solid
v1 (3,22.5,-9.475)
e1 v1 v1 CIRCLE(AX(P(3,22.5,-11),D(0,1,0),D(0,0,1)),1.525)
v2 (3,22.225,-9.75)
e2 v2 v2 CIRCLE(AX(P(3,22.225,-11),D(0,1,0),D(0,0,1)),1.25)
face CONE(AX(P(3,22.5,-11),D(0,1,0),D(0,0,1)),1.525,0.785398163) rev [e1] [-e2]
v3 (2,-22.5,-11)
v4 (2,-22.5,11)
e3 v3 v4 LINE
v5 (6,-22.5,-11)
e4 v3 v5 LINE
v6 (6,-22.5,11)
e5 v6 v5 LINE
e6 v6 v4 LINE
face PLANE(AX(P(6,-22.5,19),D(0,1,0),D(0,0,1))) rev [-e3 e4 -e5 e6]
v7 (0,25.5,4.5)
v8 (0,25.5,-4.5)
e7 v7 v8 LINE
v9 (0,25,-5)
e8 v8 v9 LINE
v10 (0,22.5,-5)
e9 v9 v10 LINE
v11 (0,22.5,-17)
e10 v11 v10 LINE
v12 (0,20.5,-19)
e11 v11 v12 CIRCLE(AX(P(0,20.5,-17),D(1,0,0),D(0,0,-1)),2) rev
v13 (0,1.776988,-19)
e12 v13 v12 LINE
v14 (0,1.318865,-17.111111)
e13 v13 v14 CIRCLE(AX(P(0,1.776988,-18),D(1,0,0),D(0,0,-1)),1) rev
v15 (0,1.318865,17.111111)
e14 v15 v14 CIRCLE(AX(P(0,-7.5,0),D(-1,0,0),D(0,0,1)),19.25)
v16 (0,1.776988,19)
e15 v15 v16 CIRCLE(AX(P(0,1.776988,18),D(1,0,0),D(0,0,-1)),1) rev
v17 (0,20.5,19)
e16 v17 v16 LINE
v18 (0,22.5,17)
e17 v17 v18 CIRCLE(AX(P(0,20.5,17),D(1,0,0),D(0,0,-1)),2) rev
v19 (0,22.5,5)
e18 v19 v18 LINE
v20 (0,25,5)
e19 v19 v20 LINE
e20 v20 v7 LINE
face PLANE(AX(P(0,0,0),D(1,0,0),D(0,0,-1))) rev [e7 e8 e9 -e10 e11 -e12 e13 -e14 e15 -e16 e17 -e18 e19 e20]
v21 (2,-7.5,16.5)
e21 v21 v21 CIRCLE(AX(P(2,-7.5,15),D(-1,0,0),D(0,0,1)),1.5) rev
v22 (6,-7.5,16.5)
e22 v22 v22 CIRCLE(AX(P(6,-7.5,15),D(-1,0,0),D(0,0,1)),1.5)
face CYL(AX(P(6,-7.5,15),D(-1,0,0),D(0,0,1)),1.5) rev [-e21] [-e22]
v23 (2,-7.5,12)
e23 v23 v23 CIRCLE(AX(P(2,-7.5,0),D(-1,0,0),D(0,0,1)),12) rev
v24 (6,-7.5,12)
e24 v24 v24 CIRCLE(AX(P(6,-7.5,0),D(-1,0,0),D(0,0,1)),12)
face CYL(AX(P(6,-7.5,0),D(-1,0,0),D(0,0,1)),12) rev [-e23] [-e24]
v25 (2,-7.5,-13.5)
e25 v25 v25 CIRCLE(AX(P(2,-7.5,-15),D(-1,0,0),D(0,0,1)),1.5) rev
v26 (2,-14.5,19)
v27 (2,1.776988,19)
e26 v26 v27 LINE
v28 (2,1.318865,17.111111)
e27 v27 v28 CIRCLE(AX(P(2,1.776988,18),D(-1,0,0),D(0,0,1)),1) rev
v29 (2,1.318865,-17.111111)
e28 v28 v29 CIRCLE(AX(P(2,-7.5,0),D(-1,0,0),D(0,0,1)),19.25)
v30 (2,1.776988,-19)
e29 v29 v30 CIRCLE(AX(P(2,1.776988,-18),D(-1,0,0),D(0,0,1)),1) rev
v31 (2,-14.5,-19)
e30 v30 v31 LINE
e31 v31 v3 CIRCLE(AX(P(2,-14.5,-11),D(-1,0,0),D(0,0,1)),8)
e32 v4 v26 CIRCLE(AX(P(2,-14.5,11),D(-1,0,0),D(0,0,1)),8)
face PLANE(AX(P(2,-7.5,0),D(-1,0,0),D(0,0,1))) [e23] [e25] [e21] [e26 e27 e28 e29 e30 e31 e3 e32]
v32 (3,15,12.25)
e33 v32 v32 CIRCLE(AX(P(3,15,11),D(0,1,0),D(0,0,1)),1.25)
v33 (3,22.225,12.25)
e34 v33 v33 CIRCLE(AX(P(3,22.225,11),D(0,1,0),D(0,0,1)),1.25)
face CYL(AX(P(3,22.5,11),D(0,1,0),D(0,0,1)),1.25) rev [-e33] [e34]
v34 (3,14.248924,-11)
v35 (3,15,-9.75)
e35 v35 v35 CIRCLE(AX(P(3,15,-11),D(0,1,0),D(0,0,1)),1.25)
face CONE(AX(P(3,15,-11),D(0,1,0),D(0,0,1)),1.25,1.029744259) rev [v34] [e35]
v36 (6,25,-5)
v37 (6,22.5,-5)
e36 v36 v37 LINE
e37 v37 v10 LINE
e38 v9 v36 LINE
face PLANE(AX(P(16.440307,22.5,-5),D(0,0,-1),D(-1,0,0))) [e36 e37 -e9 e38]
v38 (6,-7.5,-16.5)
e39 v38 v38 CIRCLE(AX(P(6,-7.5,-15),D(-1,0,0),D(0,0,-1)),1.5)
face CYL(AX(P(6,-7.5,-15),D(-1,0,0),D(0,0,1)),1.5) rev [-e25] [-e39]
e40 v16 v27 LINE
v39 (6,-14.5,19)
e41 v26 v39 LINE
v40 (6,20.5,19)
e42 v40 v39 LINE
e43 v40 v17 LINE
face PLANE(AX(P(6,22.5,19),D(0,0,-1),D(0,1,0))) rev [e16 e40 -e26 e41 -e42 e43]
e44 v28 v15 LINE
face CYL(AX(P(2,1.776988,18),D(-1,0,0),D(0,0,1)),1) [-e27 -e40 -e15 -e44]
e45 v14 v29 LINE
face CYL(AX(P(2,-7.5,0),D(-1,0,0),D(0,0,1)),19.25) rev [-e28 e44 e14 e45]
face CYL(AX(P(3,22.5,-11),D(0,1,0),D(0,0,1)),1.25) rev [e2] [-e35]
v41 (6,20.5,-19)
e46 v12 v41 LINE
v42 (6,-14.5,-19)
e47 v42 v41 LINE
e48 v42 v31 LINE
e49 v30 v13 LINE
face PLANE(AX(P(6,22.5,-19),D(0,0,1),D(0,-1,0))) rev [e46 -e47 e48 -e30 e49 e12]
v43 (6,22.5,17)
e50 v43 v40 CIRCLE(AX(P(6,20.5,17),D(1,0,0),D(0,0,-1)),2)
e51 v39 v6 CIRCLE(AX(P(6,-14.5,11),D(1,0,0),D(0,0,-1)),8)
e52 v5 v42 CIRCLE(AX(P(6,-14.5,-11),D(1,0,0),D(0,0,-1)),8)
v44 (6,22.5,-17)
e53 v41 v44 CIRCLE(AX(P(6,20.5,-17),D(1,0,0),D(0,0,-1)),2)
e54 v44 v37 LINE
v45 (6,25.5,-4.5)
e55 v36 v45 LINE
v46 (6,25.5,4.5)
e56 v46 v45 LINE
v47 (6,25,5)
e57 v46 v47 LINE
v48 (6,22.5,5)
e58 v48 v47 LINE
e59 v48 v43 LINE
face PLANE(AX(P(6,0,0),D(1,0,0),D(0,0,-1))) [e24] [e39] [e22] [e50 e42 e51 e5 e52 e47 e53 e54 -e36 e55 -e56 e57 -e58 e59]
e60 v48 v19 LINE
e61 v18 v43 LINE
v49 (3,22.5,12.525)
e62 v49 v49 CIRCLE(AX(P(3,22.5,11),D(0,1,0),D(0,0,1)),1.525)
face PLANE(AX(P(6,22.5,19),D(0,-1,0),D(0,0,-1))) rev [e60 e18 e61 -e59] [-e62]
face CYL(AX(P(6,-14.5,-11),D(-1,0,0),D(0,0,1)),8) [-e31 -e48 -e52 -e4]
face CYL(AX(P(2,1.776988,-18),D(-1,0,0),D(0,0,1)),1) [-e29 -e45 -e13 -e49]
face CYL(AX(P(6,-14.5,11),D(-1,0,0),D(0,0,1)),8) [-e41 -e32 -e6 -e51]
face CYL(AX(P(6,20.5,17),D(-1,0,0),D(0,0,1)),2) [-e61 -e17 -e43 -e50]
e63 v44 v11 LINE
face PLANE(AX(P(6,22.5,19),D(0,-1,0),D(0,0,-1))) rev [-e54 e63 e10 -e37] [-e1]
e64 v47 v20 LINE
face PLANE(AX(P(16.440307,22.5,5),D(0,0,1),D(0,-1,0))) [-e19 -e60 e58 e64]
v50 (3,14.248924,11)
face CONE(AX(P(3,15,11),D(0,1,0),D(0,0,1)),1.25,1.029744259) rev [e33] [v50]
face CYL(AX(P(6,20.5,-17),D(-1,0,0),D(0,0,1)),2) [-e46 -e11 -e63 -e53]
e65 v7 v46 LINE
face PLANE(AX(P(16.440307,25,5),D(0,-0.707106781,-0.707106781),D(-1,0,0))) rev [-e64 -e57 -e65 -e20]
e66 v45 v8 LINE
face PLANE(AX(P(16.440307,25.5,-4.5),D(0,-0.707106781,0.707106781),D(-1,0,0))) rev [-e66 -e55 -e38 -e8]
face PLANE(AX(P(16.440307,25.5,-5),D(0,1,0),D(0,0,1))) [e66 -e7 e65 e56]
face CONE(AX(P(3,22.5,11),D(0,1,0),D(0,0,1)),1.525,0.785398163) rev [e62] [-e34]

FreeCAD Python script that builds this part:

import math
import FreeCAD as App
import Part
import Sketcher


def edges_at(feature, points):
    """Names of the edges that pass closest to the given points."""
    edges = feature.Shape.Edges
    near = lambda p: min(range(len(edges)), key=lambda i: edges[i].distToShape(Part.Vertex(*p))[0])
    return sorted({f"Edge{near(p) + 1}" for p in points})

doc = App.newDocument("Part")
params = doc.addObject("Spreadsheet::Sheet", "Params")
for row, (alias, value) in enumerate([
    ("sketch1_width", "45 mm"),
    ("sketch1_height", "38 mm"),
    ("pad1_length", "6 mm"),
    ("sketch2_diameter", "24 mm"),
    ("sketch2_diameter2", "3 mm"),
    ("sketch3_width", "15 mm"),
    ("sketch3_radius", "19.25 mm"),
    ("pocket2_length", "2 mm"),
    ("fillet_radius", "1 mm"),
    ("fillet2_radius", "8 mm"),
    ("fillet3_radius", "2 mm"),
    ("sketch4_width", "3 mm"),
    ("sketch4_height", "10 mm"),
    ("pad2_length", "6 mm"),
    ("chamfer_size", "0.5 mm"),
    ("sketch5_diameter", "2.5 mm"),
    ("hole_diameter", "2.5 mm"),
    ("hole_depth", "7.5 mm"),
    ("hole_csink_diameter", "3.05 mm"),
], start=1):
    params.set(f"A{row}", alias)
    params.set(f"B{row}", "=" + value)
    params.setAlias(f"B{row}", alias)

body = doc.addObject("PartDesign::Body", "Body")

# Sketch on YZ plane
sketch1 = doc.addObject("Sketcher::SketchObject", "Sketch")
body.addObject(sketch1)
sketch1.AttachmentSupport = (doc.YZ_Plane, [""])
sketch1.MapMode = "FlatFace"
sketch1.addGeometry(Part.LineSegment(App.Vector(22.5, 19, 0), App.Vector(-22.5, 19, 0)), False)
sketch1.addGeometry(Part.LineSegment(App.Vector(-22.5, 19, 0), App.Vector(-22.5, -19, 0)), False)
sketch1.addGeometry(Part.LineSegment(App.Vector(-22.5, -19, 0), App.Vector(22.5, -19, 0)), False)
sketch1.addGeometry(Part.LineSegment(App.Vector(22.5, -19, 0), App.Vector(22.5, 19, 0)), False)
sketch1.addConstraint(Sketcher.Constraint("Coincident", 0, 2, 1, 1))
sketch1.addConstraint(Sketcher.Constraint("Coincident", 1, 2, 2, 1))
sketch1.addConstraint(Sketcher.Constraint("Coincident", 2, 2, 3, 1))
sketch1.addConstraint(Sketcher.Constraint("Coincident", 3, 2, 0, 1))
sketch1.addConstraint(Sketcher.Constraint("Horizontal", 0))
sketch1.addConstraint(Sketcher.Constraint("Vertical", 1))
sketch1.addConstraint(Sketcher.Constraint("Horizontal", 2))
sketch1.addConstraint(Sketcher.Constraint("Vertical", 3))
sketch1.addConstraint(Sketcher.Constraint("Symmetric", 0, 2, 2, 2, -1, 1))
sketch1.addConstraint(Sketcher.Constraint("DistanceX", 0, 2, 0, 1, 45.0))
sketch1.addConstraint(Sketcher.Constraint("DistanceY", 1, 2, 1, 1, 38.0))
sketch1.setExpression("Constraints[9]", "Params.sketch1_width")
sketch1.setExpression("Constraints[10]", "Params.sketch1_height")
pad1 = doc.addObject("PartDesign::Pad", "Pad")
body.addObject(pad1)
pad1.Profile = sketch1
pad1.setExpression("Length", "Params.pad1_length")

# Sketch on YZ plane
sketch2 = doc.addObject("Sketcher::SketchObject", "Sketch001")
body.addObject(sketch2)
sketch2.AttachmentSupport = (doc.YZ_Plane, [""])
sketch2.MapMode = "FlatFace"
sketch2.addGeometry(Part.Circle(App.Vector(-7.5, 0, 0), App.Vector(0, 0, 1), 12), False)
sketch2.addGeometry(Part.Circle(App.Vector(-7.5, 15, 0), App.Vector(0, 0, 1), 1.5), False)
sketch2.addGeometry(Part.Circle(App.Vector(-7.5, -15, 0), App.Vector(0, 0, 1), 1.5), False)
sketch2.addConstraint(Sketcher.Constraint("Equal", 1, 2))
sketch2.addConstraint(Sketcher.Constraint("Symmetric", 1, 3, 2, 3, -1))
sketch2.addConstraint(Sketcher.Constraint("PointOnObject", 0, 3, -1))
sketch2.addConstraint(Sketcher.Constraint("Vertical", 0, 3, 1, 3))
sketch2.addConstraint(Sketcher.Constraint("Diameter", 0, 24.0))
sketch2.addConstraint(Sketcher.Constraint("Diameter", 1, 3.0))
sketch2.addConstraint(Sketcher.Constraint("DistanceY", -1, 1, 1, 3, 15.0))
sketch2.addConstraint(Sketcher.Constraint("DistanceX", 0, 3, -1, 1, 7.5))
sketch2.setExpression("Constraints[4]", "Params.sketch2_diameter")
sketch2.setExpression("Constraints[5]", "Params.sketch2_diameter2")
pocket1 = doc.addObject("PartDesign::Pocket", "Pocket")
body.addObject(pocket1)
pocket1.Profile = sketch2
pocket1.Type = "ThroughAll"
pocket1.Reversed = True

# Sketch on YZ plane
sketch3 = doc.addObject("Sketcher::SketchObject", "Sketch002")
body.addObject(sketch3)
sketch3.AttachmentSupport = (doc.YZ_Plane, [""])
sketch3.MapMode = "FlatFace"
sketch3.addGeometry(Part.LineSegment(App.Vector(-22.5, 19.25, 0), App.Vector(-7.5, 19.25, 0)), False)
sketch3.addGeometry(Part.ArcOfCircle(Part.Circle(App.Vector(-7.5, 0, 0), App.Vector(0, 0, 1), 19.25), math.radians(-90), math.radians(90)), False)
sketch3.addGeometry(Part.LineSegment(App.Vector(-7.5, -19.25, 0), App.Vector(-22.5, -19.25, 0)), False)
sketch3.addGeometry(Part.LineSegment(App.Vector(-22.5, -19.25, 0), App.Vector(-22.5, 19.25, 0)), False)
sketch3.addConstraint(Sketcher.Constraint("Tangent", 0, 2, 1, 2))
sketch3.addConstraint(Sketcher.Constraint("Tangent", 1, 1, 2, 1))
sketch3.addConstraint(Sketcher.Constraint("Coincident", 2, 2, 3, 1))
sketch3.addConstraint(Sketcher.Constraint("Coincident", 3, 2, 0, 1))
sketch3.addConstraint(Sketcher.Constraint("Horizontal", 0))
sketch3.addConstraint(Sketcher.Constraint("Horizontal", 2))
sketch3.addConstraint(Sketcher.Constraint("Vertical", 3))
sketch3.addConstraint(Sketcher.Constraint("PointOnObject", 1, 3, -1))
sketch3.addConstraint(Sketcher.Constraint("DistanceX", 0, 1, 0, 2, 15.0))
sketch3.addConstraint(Sketcher.Constraint("Radius", 1, 19.25))
sketch3.addConstraint(Sketcher.Constraint("DistanceX", 1, 3, -1, 1, 7.5))
sketch3.setExpression("Constraints[8]", "Params.sketch3_width")
sketch3.setExpression("Constraints[9]", "Params.sketch3_radius")
pocket2 = doc.addObject("PartDesign::Pocket", "Pocket001")
body.addObject(pocket2)
pocket2.Profile = sketch3
pocket2.setExpression("Length", "Params.pocket2_length")
pocket2.Reversed = True
doc.recompute()

fillet = doc.addObject("PartDesign::Fillet", "Fillet")
body.addObject(fillet)
fillet.Base = (pocket2, edges_at(pocket2, [(1, -4.408, -19), (1, -4.408, 19)]))
fillet.setExpression("Radius", "Params.fillet_radius")
doc.recompute()

fillet2 = doc.addObject("PartDesign::Fillet", "Fillet001")
body.addObject(fillet2)
fillet2.Base = (fillet, edges_at(fillet, [(4, -22.5, -19), (4, -22.5, 19)]))
fillet2.setExpression("Radius", "Params.fillet2_radius")
doc.recompute()

fillet3 = doc.addObject("PartDesign::Fillet", "Fillet002")
body.addObject(fillet3)
fillet3.Base = (fillet2, edges_at(fillet2, [(3, 22.5, 19), (3, 22.5, -19)]))
fillet3.setExpression("Radius", "Params.fillet3_radius")

# Sketch on YZ plane
sketch4 = doc.addObject("Sketcher::SketchObject", "Sketch003")
body.addObject(sketch4)
sketch4.AttachmentSupport = (doc.YZ_Plane, [""])
sketch4.MapMode = "FlatFace"
sketch4.addGeometry(Part.LineSegment(App.Vector(25.5, -5, 0), App.Vector(22.5, -5, 0)), False)
sketch4.addGeometry(Part.LineSegment(App.Vector(22.5, -5, 0), App.Vector(22.5, 5, 0)), False)
sketch4.addGeometry(Part.LineSegment(App.Vector(22.5, 5, 0), App.Vector(25.5, 5, 0)), False)
sketch4.addGeometry(Part.LineSegment(App.Vector(25.5, 5, 0), App.Vector(25.5, -5, 0)), False)
sketch4.addConstraint(Sketcher.Constraint("Coincident", 0, 2, 1, 1))
sketch4.addConstraint(Sketcher.Constraint("Coincident", 1, 2, 2, 1))
sketch4.addConstraint(Sketcher.Constraint("Coincident", 2, 2, 3, 1))
sketch4.addConstraint(Sketcher.Constraint("Coincident", 3, 2, 0, 1))
sketch4.addConstraint(Sketcher.Constraint("Horizontal", 0))
sketch4.addConstraint(Sketcher.Constraint("Vertical", 1))
sketch4.addConstraint(Sketcher.Constraint("Horizontal", 2))
sketch4.addConstraint(Sketcher.Constraint("Vertical", 3))
sketch4.addConstraint(Sketcher.Constraint("DistanceX", 0, 2, 0, 1, 3.0))
sketch4.addConstraint(Sketcher.Constraint("DistanceY", 1, 1, 1, 2, 10.0))
sketch4.addConstraint(Sketcher.Constraint("DistanceY", 0, 2, -1, 1, 5.0))
sketch4.addConstraint(Sketcher.Constraint("DistanceX", -1, 1, 0, 2, 22.5))
sketch4.setExpression("Constraints[8]", "Params.sketch4_width")
sketch4.setExpression("Constraints[9]", "Params.sketch4_height")
pad2 = doc.addObject("PartDesign::Pad", "Pad001")
body.addObject(pad2)
pad2.Profile = sketch4
pad2.setExpression("Length", "Params.pad2_length")
doc.recompute()

chamfer = doc.addObject("PartDesign::Chamfer", "Chamfer")
body.addObject(chamfer)
chamfer.Base = (pad2, edges_at(pad2, [(3, 25.5, 5), (3, 25.5, -5)]))
chamfer.setExpression("Size", "Params.chamfer_size")

# Sketch on XZ plane
sketch5 = doc.addObject("Sketcher::SketchObject", "Sketch004")
body.addObject(sketch5)
sketch5.AttachmentSupport = (doc.XZ_Plane, [""])
sketch5.MapMode = "FlatFace"
sketch5.AttachmentOffset = App.Placement(App.Vector(0, 0, -22.5), App.Rotation())
sketch5.addGeometry(Part.Circle(App.Vector(3, -11, 0), App.Vector(0, 0, 1), 1.25), False)
sketch5.addGeometry(Part.Circle(App.Vector(3, 11, 0), App.Vector(0, 0, 1), 1.25), False)
sketch5.addConstraint(Sketcher.Constraint("Equal", 0, 1))
sketch5.addConstraint(Sketcher.Constraint("Symmetric", 0, 3, 1, 3, -1))
sketch5.addConstraint(Sketcher.Constraint("Diameter", 0, 2.5))
sketch5.addConstraint(Sketcher.Constraint("DistanceX", -1, 1, 0, 3, 3.0))
sketch5.addConstraint(Sketcher.Constraint("DistanceY", 0, 3, -1, 1, 11.0))
sketch5.setExpression("Constraints[2]", "Params.sketch5_diameter")
doc.recompute()
hole = doc.addObject("PartDesign::Hole", "Hole")
body.addObject(hole)
hole.Profile = sketch5
hole.ThreadType = "None"
hole.setExpression("Diameter", "Params.hole_diameter")
hole.DepthType = "Dimension"
hole.setExpression("Depth", "Params.hole_depth")
hole.DrillPoint = "Angled"
hole.DrillPointAngle = 118
hole.HoleCutType = "Countersink"
hole.setExpression("HoleCutDiameter", "Params.hole_csink_diameter")
hole.HoleCutCountersinkAngle = 90
hole.Reversed = True

doc.recompute()
